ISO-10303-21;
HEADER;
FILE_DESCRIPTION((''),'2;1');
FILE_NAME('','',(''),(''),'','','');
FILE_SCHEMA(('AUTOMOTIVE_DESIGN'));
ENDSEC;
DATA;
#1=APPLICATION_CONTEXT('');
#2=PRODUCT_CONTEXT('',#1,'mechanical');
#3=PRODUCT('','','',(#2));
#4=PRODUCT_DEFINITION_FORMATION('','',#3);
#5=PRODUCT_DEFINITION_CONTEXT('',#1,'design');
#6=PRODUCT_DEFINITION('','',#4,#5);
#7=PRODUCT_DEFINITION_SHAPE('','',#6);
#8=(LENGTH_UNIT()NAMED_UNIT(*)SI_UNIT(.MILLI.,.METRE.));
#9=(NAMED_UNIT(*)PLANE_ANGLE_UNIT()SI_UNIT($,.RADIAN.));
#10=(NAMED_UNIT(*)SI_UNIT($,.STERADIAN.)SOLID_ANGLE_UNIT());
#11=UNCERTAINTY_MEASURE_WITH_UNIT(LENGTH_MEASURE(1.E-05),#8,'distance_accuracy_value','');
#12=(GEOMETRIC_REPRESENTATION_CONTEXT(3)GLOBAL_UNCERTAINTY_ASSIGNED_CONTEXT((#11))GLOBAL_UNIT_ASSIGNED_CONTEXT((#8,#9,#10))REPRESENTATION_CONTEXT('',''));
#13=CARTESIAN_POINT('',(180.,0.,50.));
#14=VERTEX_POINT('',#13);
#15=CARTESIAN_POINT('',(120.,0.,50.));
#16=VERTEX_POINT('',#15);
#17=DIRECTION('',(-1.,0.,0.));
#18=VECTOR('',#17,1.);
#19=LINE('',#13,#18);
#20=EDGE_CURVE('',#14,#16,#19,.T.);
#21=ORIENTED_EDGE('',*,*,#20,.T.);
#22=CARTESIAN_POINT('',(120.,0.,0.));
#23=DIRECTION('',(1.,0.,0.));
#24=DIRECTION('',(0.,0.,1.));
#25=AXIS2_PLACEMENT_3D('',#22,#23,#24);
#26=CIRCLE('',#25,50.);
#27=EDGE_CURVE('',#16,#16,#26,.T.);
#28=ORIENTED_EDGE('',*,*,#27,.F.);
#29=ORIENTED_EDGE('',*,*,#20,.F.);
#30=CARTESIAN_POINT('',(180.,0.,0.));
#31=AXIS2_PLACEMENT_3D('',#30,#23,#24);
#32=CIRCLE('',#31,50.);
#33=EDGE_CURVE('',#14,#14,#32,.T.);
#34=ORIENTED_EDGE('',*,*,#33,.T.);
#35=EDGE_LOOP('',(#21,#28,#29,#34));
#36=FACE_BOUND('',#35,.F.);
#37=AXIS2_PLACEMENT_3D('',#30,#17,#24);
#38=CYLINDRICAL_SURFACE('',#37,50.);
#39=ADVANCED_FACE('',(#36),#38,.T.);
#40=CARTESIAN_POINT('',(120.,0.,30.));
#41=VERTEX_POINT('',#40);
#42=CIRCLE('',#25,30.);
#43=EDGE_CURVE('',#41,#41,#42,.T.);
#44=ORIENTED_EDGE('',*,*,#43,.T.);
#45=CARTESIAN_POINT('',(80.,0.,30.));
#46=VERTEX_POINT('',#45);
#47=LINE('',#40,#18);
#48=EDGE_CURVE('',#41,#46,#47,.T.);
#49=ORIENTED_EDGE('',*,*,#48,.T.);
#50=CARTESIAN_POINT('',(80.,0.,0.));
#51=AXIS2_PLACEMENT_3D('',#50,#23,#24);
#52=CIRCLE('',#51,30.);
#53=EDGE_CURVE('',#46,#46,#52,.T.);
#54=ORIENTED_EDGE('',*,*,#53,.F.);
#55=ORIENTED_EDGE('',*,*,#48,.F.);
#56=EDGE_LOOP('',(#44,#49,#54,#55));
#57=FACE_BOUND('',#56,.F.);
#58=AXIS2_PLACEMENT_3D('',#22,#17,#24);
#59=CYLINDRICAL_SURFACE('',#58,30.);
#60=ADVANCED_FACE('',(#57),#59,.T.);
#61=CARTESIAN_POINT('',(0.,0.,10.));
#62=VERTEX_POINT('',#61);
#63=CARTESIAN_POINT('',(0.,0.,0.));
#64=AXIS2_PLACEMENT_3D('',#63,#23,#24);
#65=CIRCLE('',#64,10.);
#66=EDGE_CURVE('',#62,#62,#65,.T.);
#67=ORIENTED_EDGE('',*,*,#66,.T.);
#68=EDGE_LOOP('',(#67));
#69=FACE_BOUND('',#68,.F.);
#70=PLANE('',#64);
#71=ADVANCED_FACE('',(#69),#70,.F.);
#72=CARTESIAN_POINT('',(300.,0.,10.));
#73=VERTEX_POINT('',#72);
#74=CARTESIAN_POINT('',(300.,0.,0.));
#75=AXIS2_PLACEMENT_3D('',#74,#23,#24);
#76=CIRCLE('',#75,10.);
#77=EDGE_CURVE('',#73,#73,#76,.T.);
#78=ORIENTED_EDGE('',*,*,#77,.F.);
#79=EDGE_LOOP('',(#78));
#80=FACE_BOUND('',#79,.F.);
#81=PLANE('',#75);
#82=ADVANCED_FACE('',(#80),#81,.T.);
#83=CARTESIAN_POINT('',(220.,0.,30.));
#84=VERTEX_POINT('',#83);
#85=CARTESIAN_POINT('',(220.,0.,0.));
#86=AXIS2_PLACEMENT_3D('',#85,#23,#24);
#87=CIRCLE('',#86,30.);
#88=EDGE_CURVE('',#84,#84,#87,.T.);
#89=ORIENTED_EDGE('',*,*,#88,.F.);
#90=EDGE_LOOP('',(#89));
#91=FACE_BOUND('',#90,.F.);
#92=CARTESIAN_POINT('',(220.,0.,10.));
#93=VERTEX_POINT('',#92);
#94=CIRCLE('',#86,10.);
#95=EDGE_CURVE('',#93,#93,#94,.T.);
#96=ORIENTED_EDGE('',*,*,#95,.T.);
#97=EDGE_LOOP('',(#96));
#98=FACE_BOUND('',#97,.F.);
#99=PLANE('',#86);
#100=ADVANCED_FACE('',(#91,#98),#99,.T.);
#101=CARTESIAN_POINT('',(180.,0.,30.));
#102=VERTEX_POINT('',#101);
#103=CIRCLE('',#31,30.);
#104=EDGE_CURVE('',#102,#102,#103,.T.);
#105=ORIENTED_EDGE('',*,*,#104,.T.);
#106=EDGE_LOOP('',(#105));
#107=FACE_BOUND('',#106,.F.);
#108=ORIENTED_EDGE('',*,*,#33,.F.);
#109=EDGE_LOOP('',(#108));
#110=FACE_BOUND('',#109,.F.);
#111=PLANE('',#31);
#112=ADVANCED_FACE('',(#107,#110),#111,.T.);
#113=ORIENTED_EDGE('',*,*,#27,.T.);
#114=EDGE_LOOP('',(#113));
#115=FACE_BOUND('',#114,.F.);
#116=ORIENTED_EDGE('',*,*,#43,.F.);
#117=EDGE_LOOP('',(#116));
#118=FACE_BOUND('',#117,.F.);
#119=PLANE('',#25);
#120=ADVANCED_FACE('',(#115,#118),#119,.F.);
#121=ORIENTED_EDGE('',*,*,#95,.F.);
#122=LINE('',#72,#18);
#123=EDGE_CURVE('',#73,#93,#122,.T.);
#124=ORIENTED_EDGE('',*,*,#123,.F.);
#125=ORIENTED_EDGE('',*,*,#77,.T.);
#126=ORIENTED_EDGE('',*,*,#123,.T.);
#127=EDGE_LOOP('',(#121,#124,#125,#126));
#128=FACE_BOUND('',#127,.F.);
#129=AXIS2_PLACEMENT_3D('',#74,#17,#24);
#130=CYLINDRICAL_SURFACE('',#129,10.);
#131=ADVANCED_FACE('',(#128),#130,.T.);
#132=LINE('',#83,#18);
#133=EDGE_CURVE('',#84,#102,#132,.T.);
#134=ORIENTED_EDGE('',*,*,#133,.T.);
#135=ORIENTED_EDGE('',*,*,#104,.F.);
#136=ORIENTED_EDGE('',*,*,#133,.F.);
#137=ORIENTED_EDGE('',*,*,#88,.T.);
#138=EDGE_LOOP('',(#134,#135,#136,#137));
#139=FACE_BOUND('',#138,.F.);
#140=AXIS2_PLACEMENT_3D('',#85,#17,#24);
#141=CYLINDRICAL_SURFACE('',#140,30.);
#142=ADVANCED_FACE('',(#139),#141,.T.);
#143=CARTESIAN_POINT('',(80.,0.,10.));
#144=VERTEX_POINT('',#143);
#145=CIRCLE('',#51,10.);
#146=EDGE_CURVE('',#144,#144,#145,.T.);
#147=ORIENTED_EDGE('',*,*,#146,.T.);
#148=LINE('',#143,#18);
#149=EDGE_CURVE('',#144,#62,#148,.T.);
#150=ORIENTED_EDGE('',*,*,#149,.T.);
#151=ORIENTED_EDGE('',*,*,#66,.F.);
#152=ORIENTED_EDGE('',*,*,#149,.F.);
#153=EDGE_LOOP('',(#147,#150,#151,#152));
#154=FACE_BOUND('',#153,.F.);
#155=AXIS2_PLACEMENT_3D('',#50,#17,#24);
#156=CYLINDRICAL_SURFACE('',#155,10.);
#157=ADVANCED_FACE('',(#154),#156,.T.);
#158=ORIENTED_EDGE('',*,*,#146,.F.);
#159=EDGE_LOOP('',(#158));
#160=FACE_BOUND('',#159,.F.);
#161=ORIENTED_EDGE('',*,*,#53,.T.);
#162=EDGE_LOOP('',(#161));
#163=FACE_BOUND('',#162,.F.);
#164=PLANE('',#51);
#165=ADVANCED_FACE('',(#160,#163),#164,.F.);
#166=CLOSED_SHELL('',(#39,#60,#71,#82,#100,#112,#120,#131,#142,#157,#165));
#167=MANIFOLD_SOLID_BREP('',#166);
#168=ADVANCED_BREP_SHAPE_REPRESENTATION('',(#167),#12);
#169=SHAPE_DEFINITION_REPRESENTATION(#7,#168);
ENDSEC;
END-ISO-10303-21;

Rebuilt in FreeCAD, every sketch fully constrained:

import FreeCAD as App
import Part
import Sketcher

V = App.Vector
Q = App.Units.Quantity

doc = App.newDocument("Part")
body = doc.addObject("PartDesign::Body", "Body")

sketch1 = body.newObject("Sketcher::SketchObject", "Sketch")
sketch1.AttachmentSupport = (doc.getObject("XY_Plane"), [""])
sketch1.MapMode = "FlatFace"
sketch1.addGeometry(Part.LineSegment(V(0, 10, 0), V(0, 0, 0)), False)
sketch1.addGeometry(Part.LineSegment(V(0, 0, 0), V(300, 0, 0)), False)
sketch1.addGeometry(Part.LineSegment(V(300, 0, 0), V(300, 10, 0)), False)
sketch1.addGeometry(Part.LineSegment(V(300, 10, 0), V(220, 10, 0)), False)
sketch1.addGeometry(Part.LineSegment(V(220, 10, 0), V(220, 30, 0)), False)
sketch1.addGeometry(Part.LineSegment(V(220, 30, 0), V(180, 30, 0)), False)
sketch1.addGeometry(Part.LineSegment(V(180, 30, 0), V(180, 50, 0)), False)
sketch1.addGeometry(Part.LineSegment(V(180, 50, 0), V(120, 50, 0)), False)
sketch1.addGeometry(Part.LineSegment(V(120, 50, 0), V(120, 30, 0)), False)
sketch1.addGeometry(Part.LineSegment(V(120, 30, 0), V(80, 30, 0)), False)
sketch1.addGeometry(Part.LineSegment(V(80, 30, 0), V(80, 10, 0)), False)
sketch1.addGeometry(Part.LineSegment(V(80, 10, 0), V(0, 10, 0)), False)
sketch1.addConstraint(Sketcher.Constraint("Coincident", 0, 2, 1, 1))
sketch1.addConstraint(Sketcher.Constraint("Coincident", 1, 2, 2, 1))
sketch1.addConstraint(Sketcher.Constraint("Coincident", 2, 2, 3, 1))
sketch1.addConstraint(Sketcher.Constraint("Coincident", 3, 2, 4, 1))
sketch1.addConstraint(Sketcher.Constraint("Coincident", 4, 2, 5, 1))
sketch1.addConstraint(Sketcher.Constraint("Coincident", 5, 2, 6, 1))
sketch1.addConstraint(Sketcher.Constraint("Coincident", 6, 2, 7, 1))
sketch1.addConstraint(Sketcher.Constraint("Coincident", 7, 2, 8, 1))
sketch1.addConstraint(Sketcher.Constraint("Coincident", 8, 2, 9, 1))
sketch1.addConstraint(Sketcher.Constraint("Coincident", 9, 2, 10, 1))
sketch1.addConstraint(Sketcher.Constraint("Coincident", 10, 2, 11, 1))
sketch1.addConstraint(Sketcher.Constraint("Coincident", 11, 2, 0, 1))
sketch1.addConstraint(Sketcher.Constraint("Vertical", 0))
sketch1.addConstraint(Sketcher.Constraint("Horizontal", 1))
sketch1.addConstraint(Sketcher.Constraint("Vertical", 2))
sketch1.addConstraint(Sketcher.Constraint("Horizontal", 3))
sketch1.addConstraint(Sketcher.Constraint("Vertical", 4))
sketch1.addConstraint(Sketcher.Constraint("Horizontal", 5))
sketch1.addConstraint(Sketcher.Constraint("Vertical", 6))
sketch1.addConstraint(Sketcher.Constraint("Horizontal", 7))
sketch1.addConstraint(Sketcher.Constraint("Vertical", 8))
sketch1.addConstraint(Sketcher.Constraint("Horizontal", 9))
sketch1.addConstraint(Sketcher.Constraint("Vertical", 10))
sketch1.addConstraint(Sketcher.Constraint("Horizontal", 11))
sketch1.addConstraint(Sketcher.Constraint("Coincident", 0, 2, -1, 1))
sketch1.addConstraint(Sketcher.Constraint("Horizontal", 5, 2, 8, 2))
sketch1.addConstraint(Sketcher.Constraint("Horizontal", 3, 2, 10, 2))
sketch1.addConstraint(Sketcher.Constraint("Equal", 5, 9))
sketch1.addConstraint(Sketcher.Constraint("Equal", 3, 11))
sketch1.addConstraint(Sketcher.Constraint("Equal", 4, 6))
sketch1.addConstraint(Sketcher.Constraint("DistanceX", 1, 1, 1, 2, Q("300 mm")))
sketch1.addConstraint(Sketcher.Constraint("DistanceX", 3, 2, 3, 1, Q("80 mm")))
sketch1.addConstraint(Sketcher.Constraint("DistanceX", 5, 2, 5, 1, Q("40 mm")))
sketch1.addConstraint(Sketcher.Constraint("DistanceY", 0, 2, 0, 1, Q("10 mm")))
sketch1.addConstraint(Sketcher.Constraint("DistanceY", 4, 1, 4, 2, Q("20 mm")))
revolution = body.newObject("PartDesign::Revolution", "Revolution")
revolution.Profile = sketch1
revolution.ReferenceAxis = (sketch1, ["H_Axis"])
revolution.Angle = 360

doc.recompute()
